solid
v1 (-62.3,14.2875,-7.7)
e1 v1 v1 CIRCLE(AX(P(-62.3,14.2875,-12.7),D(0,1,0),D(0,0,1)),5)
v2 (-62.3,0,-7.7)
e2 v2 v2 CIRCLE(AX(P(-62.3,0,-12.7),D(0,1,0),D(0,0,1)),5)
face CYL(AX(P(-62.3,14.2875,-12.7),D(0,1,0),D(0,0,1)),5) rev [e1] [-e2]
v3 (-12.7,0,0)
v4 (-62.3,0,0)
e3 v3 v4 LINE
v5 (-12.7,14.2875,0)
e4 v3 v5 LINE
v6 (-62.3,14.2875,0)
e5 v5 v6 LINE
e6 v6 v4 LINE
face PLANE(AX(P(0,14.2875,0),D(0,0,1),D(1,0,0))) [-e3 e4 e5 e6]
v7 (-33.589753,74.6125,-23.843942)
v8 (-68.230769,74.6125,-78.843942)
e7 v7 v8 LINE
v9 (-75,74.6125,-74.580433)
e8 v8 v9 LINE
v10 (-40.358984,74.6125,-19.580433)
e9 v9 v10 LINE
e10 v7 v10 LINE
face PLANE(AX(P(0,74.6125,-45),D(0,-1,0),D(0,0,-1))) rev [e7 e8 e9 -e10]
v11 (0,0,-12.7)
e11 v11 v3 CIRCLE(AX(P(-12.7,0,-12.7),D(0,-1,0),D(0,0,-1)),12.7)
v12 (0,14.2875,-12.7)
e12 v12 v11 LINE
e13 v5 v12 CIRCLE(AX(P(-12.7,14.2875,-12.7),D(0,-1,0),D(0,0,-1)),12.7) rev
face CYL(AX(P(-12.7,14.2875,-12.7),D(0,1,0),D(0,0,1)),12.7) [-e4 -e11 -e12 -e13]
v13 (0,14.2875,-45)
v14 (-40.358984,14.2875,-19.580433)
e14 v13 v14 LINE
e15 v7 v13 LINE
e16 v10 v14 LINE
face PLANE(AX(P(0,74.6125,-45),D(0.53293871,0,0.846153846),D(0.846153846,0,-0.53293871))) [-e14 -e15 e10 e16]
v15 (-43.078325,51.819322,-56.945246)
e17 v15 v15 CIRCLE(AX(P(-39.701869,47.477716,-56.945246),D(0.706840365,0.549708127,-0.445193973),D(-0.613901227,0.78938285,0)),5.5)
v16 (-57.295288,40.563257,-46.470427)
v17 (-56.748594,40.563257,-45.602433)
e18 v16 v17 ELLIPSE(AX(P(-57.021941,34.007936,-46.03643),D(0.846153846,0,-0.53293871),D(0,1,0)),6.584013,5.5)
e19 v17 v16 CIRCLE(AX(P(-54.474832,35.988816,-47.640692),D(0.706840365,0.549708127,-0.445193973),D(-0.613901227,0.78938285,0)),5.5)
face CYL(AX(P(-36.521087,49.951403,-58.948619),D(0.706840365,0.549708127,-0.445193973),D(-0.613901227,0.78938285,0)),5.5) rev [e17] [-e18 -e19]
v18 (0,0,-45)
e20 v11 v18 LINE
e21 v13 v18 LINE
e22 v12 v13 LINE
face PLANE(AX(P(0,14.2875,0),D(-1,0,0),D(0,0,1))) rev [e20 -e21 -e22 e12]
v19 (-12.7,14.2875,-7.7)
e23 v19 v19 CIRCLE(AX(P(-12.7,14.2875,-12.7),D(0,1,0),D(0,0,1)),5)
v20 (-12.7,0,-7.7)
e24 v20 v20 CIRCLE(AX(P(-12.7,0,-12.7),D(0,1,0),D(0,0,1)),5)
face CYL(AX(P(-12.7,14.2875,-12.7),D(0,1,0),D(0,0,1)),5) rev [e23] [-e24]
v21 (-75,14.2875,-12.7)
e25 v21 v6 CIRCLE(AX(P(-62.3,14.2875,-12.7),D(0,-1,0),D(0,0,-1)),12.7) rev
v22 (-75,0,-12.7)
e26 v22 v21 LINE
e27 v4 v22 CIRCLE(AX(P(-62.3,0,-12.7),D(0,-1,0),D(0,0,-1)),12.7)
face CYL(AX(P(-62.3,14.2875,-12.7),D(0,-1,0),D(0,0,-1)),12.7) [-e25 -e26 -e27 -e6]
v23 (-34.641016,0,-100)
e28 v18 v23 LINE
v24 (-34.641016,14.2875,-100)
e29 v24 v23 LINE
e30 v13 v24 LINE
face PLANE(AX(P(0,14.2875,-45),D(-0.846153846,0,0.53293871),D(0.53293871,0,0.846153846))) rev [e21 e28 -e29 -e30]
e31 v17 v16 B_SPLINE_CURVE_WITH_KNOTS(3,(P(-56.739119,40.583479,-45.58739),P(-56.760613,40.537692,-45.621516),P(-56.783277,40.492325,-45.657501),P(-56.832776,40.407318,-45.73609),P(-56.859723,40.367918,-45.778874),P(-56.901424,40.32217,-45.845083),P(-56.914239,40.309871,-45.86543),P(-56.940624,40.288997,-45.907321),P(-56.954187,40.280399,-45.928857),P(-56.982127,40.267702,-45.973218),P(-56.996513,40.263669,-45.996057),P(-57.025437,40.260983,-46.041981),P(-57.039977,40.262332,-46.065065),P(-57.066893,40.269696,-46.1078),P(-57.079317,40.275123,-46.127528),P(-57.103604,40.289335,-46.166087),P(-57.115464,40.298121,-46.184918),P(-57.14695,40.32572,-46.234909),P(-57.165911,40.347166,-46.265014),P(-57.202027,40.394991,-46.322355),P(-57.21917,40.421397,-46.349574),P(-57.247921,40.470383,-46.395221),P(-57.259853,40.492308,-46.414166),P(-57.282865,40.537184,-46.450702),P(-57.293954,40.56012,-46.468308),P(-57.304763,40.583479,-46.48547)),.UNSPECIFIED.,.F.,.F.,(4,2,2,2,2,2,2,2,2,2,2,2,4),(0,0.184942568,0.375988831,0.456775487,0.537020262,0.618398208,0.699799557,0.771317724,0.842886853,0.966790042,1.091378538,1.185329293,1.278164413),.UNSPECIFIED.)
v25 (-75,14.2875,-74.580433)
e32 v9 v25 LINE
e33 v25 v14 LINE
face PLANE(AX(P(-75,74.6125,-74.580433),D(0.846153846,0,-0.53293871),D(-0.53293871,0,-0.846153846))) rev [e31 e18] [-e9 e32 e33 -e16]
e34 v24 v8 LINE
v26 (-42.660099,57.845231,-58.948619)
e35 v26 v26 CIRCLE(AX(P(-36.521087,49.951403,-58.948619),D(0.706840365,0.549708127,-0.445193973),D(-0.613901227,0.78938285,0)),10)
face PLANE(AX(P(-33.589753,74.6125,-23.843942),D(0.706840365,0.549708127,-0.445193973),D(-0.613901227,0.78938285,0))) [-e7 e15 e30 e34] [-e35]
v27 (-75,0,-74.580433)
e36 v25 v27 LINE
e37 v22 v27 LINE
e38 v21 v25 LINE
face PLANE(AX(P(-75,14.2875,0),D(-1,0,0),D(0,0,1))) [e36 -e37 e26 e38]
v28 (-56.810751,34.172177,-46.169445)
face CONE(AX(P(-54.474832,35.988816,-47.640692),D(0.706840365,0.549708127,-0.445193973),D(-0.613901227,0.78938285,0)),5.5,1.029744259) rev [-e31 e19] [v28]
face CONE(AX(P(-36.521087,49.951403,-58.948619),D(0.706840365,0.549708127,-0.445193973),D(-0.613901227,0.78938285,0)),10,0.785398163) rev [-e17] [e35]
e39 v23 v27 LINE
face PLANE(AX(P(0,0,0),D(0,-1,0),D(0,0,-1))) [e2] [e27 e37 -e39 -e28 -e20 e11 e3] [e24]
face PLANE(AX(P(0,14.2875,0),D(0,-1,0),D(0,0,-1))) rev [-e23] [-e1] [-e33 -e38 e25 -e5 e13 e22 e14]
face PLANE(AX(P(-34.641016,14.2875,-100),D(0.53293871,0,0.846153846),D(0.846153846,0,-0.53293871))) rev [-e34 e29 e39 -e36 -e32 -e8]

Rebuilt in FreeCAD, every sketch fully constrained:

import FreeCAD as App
import Part
import Sketcher
Q = App.Units.Quantity


def edges_at(feature, points):
    """Names of the edges that pass closest to the given points."""
    edges = feature.Shape.Edges
    near = lambda p: min(range(len(edges)), key=lambda i: edges[i].distToShape(Part.Vertex(*p))[0])
    return sorted({f"Edge{near(p) + 1}" for p in points})

doc = App.newDocument("Part")
params = doc.addObject("Spreadsheet::Sheet", "Params")
for row, (alias, value) in enumerate([
    ("sketch1_width", "75 mm"),
    ("sketch1_height", "45 mm"),
    ("sketch1_length", "65 mm"),
    ("pad1_length", "14.2875 mm"),
    ("sketch2_length", "65 mm"),
    ("pad2_length", "60.325 mm"),
    ("sketch4_diameter", "11 mm"),
    ("hole_diameter", "11 mm"),
    ("hole_depth", "25.4 mm"),
    ("hole_csink_diameter", "20 mm"),
    ("fillet_radius", "12.7 mm"),
    ("sketch5_diameter", "10 mm"),
    ("hole2_diameter", "10 mm"),
], start=1):
    params.set(f"A{row}", alias)
    params.set(f"B{row}", "=" + value)
    params.setAlias(f"B{row}", alias)

body = doc.addObject("PartDesign::Body", "Body")

sketch1 = doc.addObject("Sketcher::SketchObject", "Sketch")
body.addObject(sketch1)
sketch1.AttachmentSupport = (doc.XZ_Plane, [""])
sketch1.MapMode = "FlatFace"
sketch1.addGeometry([
    Part.LineSegment(App.Vector(0, 0, 0), App.Vector(0, -45, 0)),
    Part.LineSegment(App.Vector(0, -45, 0), App.Vector(-35, -100, 0)),
    Part.LineSegment(App.Vector(-35, -100, 0), App.Vector(-75, -75, 0)),
    Part.LineSegment(App.Vector(-75, -75, 0), App.Vector(-75, 0, 0)),
    Part.LineSegment(App.Vector(-75, 0, 0), App.Vector(0, 0, 0)),
], False)
sketch1.addConstraint([
    Sketcher.Constraint("Coincident", 0, 2, 1, 1),
    Sketcher.Constraint("Coincident", 1, 2, 2, 1),
    Sketcher.Constraint("Coincident", 2, 2, 3, 1),
    Sketcher.Constraint("Coincident", 3, 2, 4, 1),
    Sketcher.Constraint("Coincident", 4, 2, 0, 1),
    Sketcher.Constraint("Vertical", 0),
    Sketcher.Constraint("Vertical", 3),
    Sketcher.Constraint("Horizontal", 4),
    Sketcher.Constraint("Coincident", 4, 2, -1, 1),
    Sketcher.Constraint("Perpendicular", 1, 2),
    Sketcher.Constraint("DistanceX", 4, 1, 4, 2, Q("75 mm")),
    Sketcher.Constraint("DistanceY", 0, 2, 0, 1, Q("45 mm")),
    Sketcher.Constraint("Distance", 1, Q("65 mm")),
    Sketcher.Constraint("DistanceY", 1, 2, -1, 1, Q("100 mm")),
])
sketch1.setExpression("Constraints[10]", "Params.sketch1_width")
sketch1.setExpression("Constraints[11]", "Params.sketch1_height")
sketch1.setExpression("Constraints[12]", "Params.sketch1_length")
pad1 = doc.addObject("PartDesign::Pad", "Pad")
body.addObject(pad1)
pad1.Profile = sketch1
pad1.setExpression("Length", "Params.pad1_length")
pad1.Reversed = True

sketch2 = doc.addObject("Sketcher::SketchObject", "Sketch001")
body.addObject(sketch2)
sketch2.AttachmentSupport = (doc.XZ_Plane, [""])
sketch2.MapMode = "FlatFace"
sketch2.AttachmentOffset = App.Placement(App.Vector(0, 0, -14.2875), App.Rotation())
sketch2.addGeometry([
    Part.LineSegment(App.Vector(-35, -100, 0), App.Vector(-75, -75, 0)),
    Part.LineSegment(App.Vector(-75, -75, 0), App.Vector(-40, -20, 0)),
    Part.LineSegment(App.Vector(-40, -20, 0), App.Vector(0, -45, 0)),
    Part.LineSegment(App.Vector(0, -45, 0), App.Vector(-35, -100, 0)),
], False)
sketch2.addConstraint([
    Sketcher.Constraint("Coincident", 0, 2, 1, 1),
    Sketcher.Constraint("Coincident", 1, 2, 2, 1),
    Sketcher.Constraint("Coincident", 2, 2, 3, 1),
    Sketcher.Constraint("Coincident", 3, 2, 0, 1),
    Sketcher.Constraint("PointOnObject", 2, 2, -2),
    Sketcher.Constraint("Perpendicular", 0, 1),
    Sketcher.Constraint("Perpendicular", 1, 2),
    Sketcher.Constraint("Perpendicular", 2, 3),
    Sketcher.Constraint("Distance", 1, Q("65 mm")),
    Sketcher.Constraint("DistanceX", 0, 2, -1, 1, Q("75 mm")),
    Sketcher.Constraint("DistanceY", 2, 2, -1, 1, Q("45 mm")),
    Sketcher.Constraint("DistanceY", 3, 2, -1, 1, Q("100 mm")),
])
sketch2.setExpression("Constraints[8]", "Params.sketch2_length")
pad2 = doc.addObject("PartDesign::Pad", "Pad001")
body.addObject(pad2)
pad2.Profile = sketch2
pad2.setExpression("Length", "Params.pad2_length")
pad2.Reversed = True

sketch3 = doc.addObject("Sketcher::SketchObject", "Sketch002")
body.addObject(sketch3)
sketch3.Placement = App.Placement(App.Vector(-20.292666, 0, -32.218935), App.Rotation(App.Vector(0.846153846, 0, -0.53293871), App.Vector(0, 1, 0), App.Vector(0.53293871, 0, 0.846153846), "ZXY"))
sketch3.addGeometry([
    Part.LineSegment(App.Vector(-138, 260, 0), App.Vector(146, -172, 0)),
    Part.LineSegment(App.Vector(146, -172, 0), App.Vector(518, 73, 0)),
    Part.LineSegment(App.Vector(518, 73, 0), App.Vector(234, 505, 0)),
    Part.LineSegment(App.Vector(234, 505, 0), App.Vector(-138, 260, 0)),
], False)
sketch3.addConstraint([
    Sketcher.Constraint("Coincident", 0, 2, 1, 1),
    Sketcher.Constraint("Coincident", 1, 2, 2, 1),
    Sketcher.Constraint("Coincident", 2, 2, 3, 1),
    Sketcher.Constraint("Coincident", 3, 2, 0, 1),
    Sketcher.Constraint("Perpendicular", 0, 1),
    Sketcher.Constraint("Perpendicular", 1, 2),
    Sketcher.Constraint("Perpendicular", 2, 3),
    Sketcher.Constraint("DistanceX", -1, 1, 2, 2, Q("233.671602 mm")),
    Sketcher.Constraint("Distance", 0, Q("517.147971 mm")),
    Sketcher.Constraint("Distance", 1, Q("444.933319 mm")),
    Sketcher.Constraint("DistanceX", 3, 2, -1, 1, Q("138.00647 mm")),
    Sketcher.Constraint("DistanceY", 0, 2, -1, 1, Q("171.551536 mm")),
])
pocket1 = doc.addObject("PartDesign::Pocket", "Pocket")
body.addObject(pocket1)
pocket1.Profile = sketch3
pocket1.Type = "ThroughAll"

sketch4 = doc.addObject("Sketcher::SketchObject", "Sketch003")
body.addObject(sketch4)
sketch4.Placement = App.Placement(App.Vector(19.71214, 15.330086, -12.415429), App.Rotation(App.Vector(-0.367784623, -0.252012207, -0.895111344), App.Vector(-0.604244296, 0.796436327, 0.024041796), App.Vector(0.706840365, 0.549708127, -0.445193973), "ZXY"))
sketch4.addGeometry(Part.Circle(App.Vector(54, 60, 0), App.Vector(0, 0, 1), 6), False)
sketch4.addConstraint([
    Sketcher.Constraint("Diameter", 0, Q("11 mm")),
    Sketcher.Constraint("DistanceX", -1, 1, 0, 3, Q("53.609109 mm")),
    Sketcher.Constraint("DistanceY", -1, 1, 0, 3, Q("60.433539 mm")),
])
sketch4.setExpression("Constraints[0]", "Params.sketch4_diameter")
doc.recompute()
hole = doc.addObject("PartDesign::Hole", "Hole")
body.addObject(hole)
hole.Profile = sketch4
hole.ThreadType = "None"
hole.setExpression("Diameter", "Params.hole_diameter")
hole.DepthType = "Dimension"
hole.setExpression("Depth", "Params.hole_depth")
hole.DrillPoint = "Angled"
hole.DrillPointAngle = 118
hole.HoleCutType = "Countersink"
hole.setExpression("HoleCutDiameter", "Params.hole_csink_diameter")
hole.HoleCutCountersinkAngle = 90
doc.recompute()

fillet = doc.addObject("PartDesign::Fillet", "Fillet")
body.addObject(fillet)
fillet.Base = (hole, edges_at(hole, [(0, 7.144, 0), (-75, 7.144, 0)]))
fillet.setExpression("Radius", "Params.fillet_radius")

sketch5 = doc.addObject("Sketcher::SketchObject", "Sketch004")
body.addObject(sketch5)
sketch5.AttachmentSupport = (doc.XZ_Plane, [""])
sketch5.MapMode = "FlatFace"
sketch5.AttachmentOffset = App.Placement(App.Vector(0, 0, -14.2875), App.Rotation())
sketch5.addGeometry([
    Part.Circle(App.Vector(-13, -13, 0), App.Vector(0, 0, 1), 5),
    Part.Circle(App.Vector(-62, -13, 0), App.Vector(0, 0, 1), 5),
], False)
sketch5.addConstraint([
    Sketcher.Constraint("Equal", 0, 1),
    Sketcher.Constraint("Horizontal", 0, 3, 1, 3),
    Sketcher.Constraint("Diameter", 0, Q("10 mm")),
    Sketcher.Constraint("DistanceX", 0, 3, -1, 1, Q("12.7 mm")),
    Sketcher.Constraint("DistanceY", 0, 3, -1, 1, Q("12.7 mm")),
    Sketcher.Constraint("DistanceX", 1, 3, -1, 1, Q("62.3 mm")),
])
sketch5.setExpression("Constraints[2]", "Params.sketch5_diameter")
doc.recompute()
hole2 = doc.addObject("PartDesign::Hole", "Hole001")
body.addObject(hole2)
hole2.Profile = sketch5
hole2.ThreadType = "None"
hole2.setExpression("Diameter", "Params.hole2_diameter")
hole2.DepthType = "ThroughAll"
hole2.Reversed = True

doc.recompute()
